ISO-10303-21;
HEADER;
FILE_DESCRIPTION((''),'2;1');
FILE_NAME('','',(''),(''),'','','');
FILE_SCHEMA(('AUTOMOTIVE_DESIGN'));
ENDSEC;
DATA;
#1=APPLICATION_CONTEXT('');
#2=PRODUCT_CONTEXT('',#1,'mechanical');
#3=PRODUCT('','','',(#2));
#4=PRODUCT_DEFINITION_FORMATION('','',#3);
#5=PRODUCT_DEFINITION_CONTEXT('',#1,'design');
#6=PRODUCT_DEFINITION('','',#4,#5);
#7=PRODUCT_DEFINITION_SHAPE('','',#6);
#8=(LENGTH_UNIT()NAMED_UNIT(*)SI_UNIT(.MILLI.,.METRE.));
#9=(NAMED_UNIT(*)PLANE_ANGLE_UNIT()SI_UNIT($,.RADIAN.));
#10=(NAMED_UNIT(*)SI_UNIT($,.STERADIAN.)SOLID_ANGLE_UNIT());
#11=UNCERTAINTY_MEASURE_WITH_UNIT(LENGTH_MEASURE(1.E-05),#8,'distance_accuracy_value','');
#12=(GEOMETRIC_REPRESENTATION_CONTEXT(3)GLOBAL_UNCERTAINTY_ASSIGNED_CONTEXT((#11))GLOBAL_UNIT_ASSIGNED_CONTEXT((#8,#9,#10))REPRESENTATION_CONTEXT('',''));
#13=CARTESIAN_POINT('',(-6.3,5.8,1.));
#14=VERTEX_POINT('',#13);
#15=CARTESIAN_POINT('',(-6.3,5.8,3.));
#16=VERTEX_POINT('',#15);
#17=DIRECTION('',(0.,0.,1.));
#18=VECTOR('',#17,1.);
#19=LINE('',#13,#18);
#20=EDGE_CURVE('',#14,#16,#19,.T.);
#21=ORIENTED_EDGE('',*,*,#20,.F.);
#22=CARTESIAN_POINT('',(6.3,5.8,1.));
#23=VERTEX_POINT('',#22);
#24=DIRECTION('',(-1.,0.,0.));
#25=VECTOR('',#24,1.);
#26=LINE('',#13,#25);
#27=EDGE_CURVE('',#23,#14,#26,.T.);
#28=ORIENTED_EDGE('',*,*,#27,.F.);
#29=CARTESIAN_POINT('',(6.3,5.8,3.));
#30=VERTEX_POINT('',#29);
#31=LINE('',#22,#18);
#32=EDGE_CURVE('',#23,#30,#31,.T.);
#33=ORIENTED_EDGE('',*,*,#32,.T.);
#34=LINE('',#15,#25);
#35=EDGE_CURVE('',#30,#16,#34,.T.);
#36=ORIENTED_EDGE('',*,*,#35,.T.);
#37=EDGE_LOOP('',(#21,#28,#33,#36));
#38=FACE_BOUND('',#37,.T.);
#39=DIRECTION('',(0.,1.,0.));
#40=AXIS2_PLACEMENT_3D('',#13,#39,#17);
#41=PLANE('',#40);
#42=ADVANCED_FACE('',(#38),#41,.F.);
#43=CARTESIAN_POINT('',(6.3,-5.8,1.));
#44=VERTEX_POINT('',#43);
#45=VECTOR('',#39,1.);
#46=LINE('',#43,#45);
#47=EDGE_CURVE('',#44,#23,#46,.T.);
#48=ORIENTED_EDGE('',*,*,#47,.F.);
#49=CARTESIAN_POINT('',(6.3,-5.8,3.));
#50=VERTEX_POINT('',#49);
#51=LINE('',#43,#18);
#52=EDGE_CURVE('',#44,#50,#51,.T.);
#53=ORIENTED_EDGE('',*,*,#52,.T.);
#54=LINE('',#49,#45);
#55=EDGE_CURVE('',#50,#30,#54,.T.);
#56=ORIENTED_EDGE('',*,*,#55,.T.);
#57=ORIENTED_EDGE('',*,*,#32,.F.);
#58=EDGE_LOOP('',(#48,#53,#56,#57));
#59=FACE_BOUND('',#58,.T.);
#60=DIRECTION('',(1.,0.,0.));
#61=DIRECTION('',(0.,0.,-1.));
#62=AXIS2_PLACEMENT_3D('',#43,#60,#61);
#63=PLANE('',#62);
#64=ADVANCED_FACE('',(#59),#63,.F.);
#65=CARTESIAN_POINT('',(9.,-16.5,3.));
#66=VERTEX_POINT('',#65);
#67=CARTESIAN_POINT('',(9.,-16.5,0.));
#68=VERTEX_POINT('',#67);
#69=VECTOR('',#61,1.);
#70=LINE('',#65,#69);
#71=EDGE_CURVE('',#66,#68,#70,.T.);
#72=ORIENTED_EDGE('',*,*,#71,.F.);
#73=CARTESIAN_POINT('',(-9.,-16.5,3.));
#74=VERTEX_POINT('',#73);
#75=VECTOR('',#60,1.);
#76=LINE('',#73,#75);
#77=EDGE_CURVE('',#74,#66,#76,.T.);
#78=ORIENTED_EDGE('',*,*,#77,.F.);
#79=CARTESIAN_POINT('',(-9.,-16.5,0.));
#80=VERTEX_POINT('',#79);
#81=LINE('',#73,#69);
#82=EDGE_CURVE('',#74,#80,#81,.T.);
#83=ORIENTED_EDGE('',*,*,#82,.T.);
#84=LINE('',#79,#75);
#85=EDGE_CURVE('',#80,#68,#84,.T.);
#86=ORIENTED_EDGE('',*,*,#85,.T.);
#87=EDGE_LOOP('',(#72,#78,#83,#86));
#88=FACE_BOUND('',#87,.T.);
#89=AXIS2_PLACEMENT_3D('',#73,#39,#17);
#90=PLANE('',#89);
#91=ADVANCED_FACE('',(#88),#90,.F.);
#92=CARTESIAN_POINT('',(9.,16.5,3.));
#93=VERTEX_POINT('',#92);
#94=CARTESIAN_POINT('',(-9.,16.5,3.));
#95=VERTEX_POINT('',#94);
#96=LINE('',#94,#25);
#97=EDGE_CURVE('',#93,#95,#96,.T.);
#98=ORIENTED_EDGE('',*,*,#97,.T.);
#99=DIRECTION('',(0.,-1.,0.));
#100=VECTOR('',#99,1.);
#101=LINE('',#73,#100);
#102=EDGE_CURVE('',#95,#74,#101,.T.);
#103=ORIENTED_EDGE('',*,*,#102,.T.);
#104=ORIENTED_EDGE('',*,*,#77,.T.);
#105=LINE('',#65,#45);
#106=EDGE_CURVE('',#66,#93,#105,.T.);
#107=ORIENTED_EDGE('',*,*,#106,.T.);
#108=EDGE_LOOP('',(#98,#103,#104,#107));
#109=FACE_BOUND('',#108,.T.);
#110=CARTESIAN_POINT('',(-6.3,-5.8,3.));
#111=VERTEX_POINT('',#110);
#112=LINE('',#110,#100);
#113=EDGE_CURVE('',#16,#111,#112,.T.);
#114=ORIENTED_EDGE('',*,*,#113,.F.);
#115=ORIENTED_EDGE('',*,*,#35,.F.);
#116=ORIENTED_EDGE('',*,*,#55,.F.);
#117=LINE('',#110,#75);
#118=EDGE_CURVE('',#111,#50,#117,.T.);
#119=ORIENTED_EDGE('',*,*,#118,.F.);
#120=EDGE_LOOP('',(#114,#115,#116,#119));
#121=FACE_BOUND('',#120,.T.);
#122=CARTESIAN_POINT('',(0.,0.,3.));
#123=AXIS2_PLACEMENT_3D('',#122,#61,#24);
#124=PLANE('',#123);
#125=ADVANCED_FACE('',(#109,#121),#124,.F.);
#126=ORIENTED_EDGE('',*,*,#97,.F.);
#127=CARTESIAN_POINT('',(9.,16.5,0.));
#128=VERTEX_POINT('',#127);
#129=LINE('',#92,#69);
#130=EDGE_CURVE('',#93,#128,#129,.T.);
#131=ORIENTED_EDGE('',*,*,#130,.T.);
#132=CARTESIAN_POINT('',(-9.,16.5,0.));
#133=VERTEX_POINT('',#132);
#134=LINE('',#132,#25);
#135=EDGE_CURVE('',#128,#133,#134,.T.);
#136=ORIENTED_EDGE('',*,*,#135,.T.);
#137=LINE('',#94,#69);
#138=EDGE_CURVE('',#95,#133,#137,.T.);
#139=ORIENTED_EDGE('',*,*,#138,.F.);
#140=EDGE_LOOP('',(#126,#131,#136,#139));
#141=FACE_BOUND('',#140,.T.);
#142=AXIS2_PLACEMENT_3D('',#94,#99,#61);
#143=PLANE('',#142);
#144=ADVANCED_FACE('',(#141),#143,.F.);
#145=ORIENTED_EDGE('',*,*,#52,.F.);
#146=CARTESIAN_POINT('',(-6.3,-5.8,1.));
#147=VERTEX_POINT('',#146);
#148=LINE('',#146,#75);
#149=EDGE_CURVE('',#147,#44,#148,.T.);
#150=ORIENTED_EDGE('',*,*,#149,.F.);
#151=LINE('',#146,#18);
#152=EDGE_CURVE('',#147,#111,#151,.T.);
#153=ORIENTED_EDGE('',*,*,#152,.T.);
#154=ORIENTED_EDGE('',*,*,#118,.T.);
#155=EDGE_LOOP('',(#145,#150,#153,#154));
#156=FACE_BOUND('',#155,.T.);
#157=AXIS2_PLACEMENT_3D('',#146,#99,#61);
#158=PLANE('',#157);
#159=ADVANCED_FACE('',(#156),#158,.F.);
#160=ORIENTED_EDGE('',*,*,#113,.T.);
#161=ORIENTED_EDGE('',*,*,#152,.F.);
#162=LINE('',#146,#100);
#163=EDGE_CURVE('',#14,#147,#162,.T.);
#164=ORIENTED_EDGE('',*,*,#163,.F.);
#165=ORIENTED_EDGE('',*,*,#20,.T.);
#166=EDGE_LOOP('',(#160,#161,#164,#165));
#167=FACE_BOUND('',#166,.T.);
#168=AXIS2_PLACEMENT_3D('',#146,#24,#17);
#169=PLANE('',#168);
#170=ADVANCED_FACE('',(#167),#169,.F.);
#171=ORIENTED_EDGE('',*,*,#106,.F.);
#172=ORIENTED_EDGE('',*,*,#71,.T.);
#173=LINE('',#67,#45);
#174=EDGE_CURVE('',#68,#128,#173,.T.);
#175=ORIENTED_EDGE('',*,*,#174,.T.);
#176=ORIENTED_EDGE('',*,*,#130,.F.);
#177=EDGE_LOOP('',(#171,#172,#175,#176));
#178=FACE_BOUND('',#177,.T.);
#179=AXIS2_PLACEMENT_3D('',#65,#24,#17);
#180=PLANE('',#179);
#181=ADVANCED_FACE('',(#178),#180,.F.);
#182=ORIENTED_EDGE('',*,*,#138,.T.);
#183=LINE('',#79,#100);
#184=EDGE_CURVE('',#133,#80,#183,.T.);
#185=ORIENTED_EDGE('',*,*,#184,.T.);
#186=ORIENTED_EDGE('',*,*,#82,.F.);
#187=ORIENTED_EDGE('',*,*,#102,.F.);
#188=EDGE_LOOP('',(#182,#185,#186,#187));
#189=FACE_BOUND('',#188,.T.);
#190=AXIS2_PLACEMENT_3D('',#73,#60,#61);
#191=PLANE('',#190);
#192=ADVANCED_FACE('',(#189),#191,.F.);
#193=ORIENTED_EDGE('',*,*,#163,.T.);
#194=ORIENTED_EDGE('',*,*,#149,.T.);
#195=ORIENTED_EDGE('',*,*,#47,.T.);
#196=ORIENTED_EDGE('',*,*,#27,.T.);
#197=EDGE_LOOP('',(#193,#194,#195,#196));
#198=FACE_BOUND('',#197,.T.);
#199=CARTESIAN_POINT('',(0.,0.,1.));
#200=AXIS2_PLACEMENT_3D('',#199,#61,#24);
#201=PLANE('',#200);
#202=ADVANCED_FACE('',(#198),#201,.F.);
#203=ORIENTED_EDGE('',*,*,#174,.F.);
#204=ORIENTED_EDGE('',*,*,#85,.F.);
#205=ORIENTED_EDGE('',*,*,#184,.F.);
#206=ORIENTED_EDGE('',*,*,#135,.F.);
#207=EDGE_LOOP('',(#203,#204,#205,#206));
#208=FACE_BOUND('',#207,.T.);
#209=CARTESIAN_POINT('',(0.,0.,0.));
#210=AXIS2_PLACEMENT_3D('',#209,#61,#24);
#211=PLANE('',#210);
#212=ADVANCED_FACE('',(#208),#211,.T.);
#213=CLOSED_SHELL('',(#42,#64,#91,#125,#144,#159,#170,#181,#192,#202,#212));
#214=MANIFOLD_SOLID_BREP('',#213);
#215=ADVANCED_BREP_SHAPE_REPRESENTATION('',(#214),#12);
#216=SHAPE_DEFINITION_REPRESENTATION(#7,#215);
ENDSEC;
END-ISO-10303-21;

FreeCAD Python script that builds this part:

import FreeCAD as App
import Part
import Sketcher
from FreeCAD import Vector
Q = App.Units.Quantity


def add_polygon(sketch, points):
    """Adds a closed chain of lines whose ends are joined by coincident constraints."""
    first, n = sketch.GeometryCount, len(points)
    for a, b in zip(points, points[1:] + points[:1]):
        sketch.addGeometry(Part.LineSegment(App.Vector(*a, 0), App.Vector(*b, 0)), False)
    for i in range(n):
        sketch.addConstraint(Sketcher.Constraint("Coincident", first + i, 2, first + (i + 1) % n, 1))

doc = App.newDocument("Part")
params = doc.addObject("Spreadsheet::Sheet", "Params")
for row, (alias, value) in enumerate([
    ("sketch1_width", "18 mm"),
    ("sketch1_height", "33 mm"),
    ("pad1_length", "3 mm"),
    ("sketch2_width", "12.6 mm"),
    ("sketch2_height", "11.6 mm"),
    ("pocket1_length", "2 mm"),
], start=1):
    params.set(f"A{row}", alias)
    params.set(f"B{row}", "=" + value)
    params.setAlias(f"B{row}", alias)

body = doc.addObject("PartDesign::Body", "Body")

# Sketch on XY plane
sketch1 = body.newObject("Sketcher::SketchObject", "Sketch")
sketch1.AttachmentSupport = (doc.getObject("XY_Plane"), [""])
sketch1.MapMode = "FlatFace"
add_polygon(sketch1, [(-9, 16.5), (-9, -16.5), (9, -16.5), (9, 16.5)])  # lines 0-3
sketch1.addConstraint([
    Sketcher.Constraint("Vertical", 0),
    Sketcher.Constraint("Horizontal", 1),
    Sketcher.Constraint("Vertical", 2),
    Sketcher.Constraint("Horizontal", 3),
    Sketcher.Constraint("Symmetric", 0, 2, 2, 2, -1, 1),
    Sketcher.Constraint("DistanceX", 1, 1, 1, 2, Q("18 mm")),
    Sketcher.Constraint("DistanceY", 0, 2, 0, 1, Q("33 mm")),
])
sketch1.setExpression("Constraints[9]", "Params.sketch1_width")
sketch1.setExpression("Constraints[10]", "Params.sketch1_height")
pad1 = body.newObject("PartDesign::Pad", "Pad")
pad1.Profile = sketch1
pad1.setExpression("Length", "Params.pad1_length")

# Sketch on XY plane
sketch2 = body.newObject("Sketcher::SketchObject", "Sketch001")
sketch2.AttachmentSupport = (doc.getObject("XY_Plane"), [""])
sketch2.MapMode = "FlatFace"
sketch2.AttachmentOffset = App.Placement(Vector(0, 0, 3), App.Rotation())
add_polygon(sketch2, [(-6.3, 5.8), (-6.3, -5.8), (6.3, -5.8), (6.3, 5.8)])  # lines 0-3
sketch2.addConstraint([
    Sketcher.Constraint("Vertical", 0),
    Sketcher.Constraint("Horizontal", 1),
    Sketcher.Constraint("Vertical", 2),
    Sketcher.Constraint("Horizontal", 3),
    Sketcher.Constraint("Symmetric", 0, 2, 2, 2, -1, 1),
    Sketcher.Constraint("DistanceX", 1, 1, 1, 2, Q("12.6 mm")),
    Sketcher.Constraint("DistanceY", 0, 2, 0, 1, Q("11.6 mm")),
])
sketch2.setExpression("Constraints[9]", "Params.sketch2_width")
sketch2.setExpression("Constraints[10]", "Params.sketch2_height")
pocket1 = body.newObject("PartDesign::Pocket", "Pocket")
pocket1.Profile = sketch2
pocket1.setExpression("Length", "Params.pocket1_length")

doc.recompute()
